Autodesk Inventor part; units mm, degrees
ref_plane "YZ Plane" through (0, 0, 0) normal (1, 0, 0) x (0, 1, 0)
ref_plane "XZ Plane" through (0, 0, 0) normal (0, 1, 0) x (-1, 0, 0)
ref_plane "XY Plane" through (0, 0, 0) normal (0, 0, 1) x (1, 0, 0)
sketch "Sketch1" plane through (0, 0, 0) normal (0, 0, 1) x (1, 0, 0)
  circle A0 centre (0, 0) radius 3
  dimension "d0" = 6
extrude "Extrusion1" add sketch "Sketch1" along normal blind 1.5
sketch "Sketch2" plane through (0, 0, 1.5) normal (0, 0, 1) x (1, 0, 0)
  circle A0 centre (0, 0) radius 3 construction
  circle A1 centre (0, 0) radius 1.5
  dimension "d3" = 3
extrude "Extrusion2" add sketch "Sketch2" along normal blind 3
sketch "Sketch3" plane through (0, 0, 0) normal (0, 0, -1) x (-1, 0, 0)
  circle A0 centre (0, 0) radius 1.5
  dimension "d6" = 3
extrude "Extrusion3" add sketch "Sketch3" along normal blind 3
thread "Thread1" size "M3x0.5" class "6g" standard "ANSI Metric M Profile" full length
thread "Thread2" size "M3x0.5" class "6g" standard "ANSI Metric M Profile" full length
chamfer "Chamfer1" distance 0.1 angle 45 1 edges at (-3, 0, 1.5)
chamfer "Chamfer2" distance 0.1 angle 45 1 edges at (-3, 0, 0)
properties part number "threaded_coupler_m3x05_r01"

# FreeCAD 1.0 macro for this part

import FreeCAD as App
import Part
import Sketcher

V = App.Vector
Q = App.Units.Quantity


def edges_at(feature, points):
    """Names of the edges that pass closest to the given points."""
    edges = feature.Shape.Edges
    near = lambda p: min(range(len(edges)), key=lambda i: edges[i].distToShape(Part.Vertex(*p))[0])
    return sorted({f"Edge{near(p) + 1}" for p in points})

doc = App.newDocument("Part")
body = doc.addObject("PartDesign::Body", "Body")

sketch1 = doc.addObject("Sketcher::SketchObject", "Sketch")
body.addObject(sketch1)
sketch1.AttachmentSupport = (doc.XY_Plane, [""])
sketch1.MapMode = "FlatFace"
sketch1.addGeometry(Part.Circle(V(0, 0, 0), V(0, 0, 1), 3), False)
sketch1.addConstraint([
    Sketcher.Constraint("Coincident", 0, 3, -1, 1),
    Sketcher.Constraint("Diameter", 0, Q("6 mm")),
])
pad1 = doc.addObject("PartDesign::Pad", "Pad")
body.addObject(pad1)
pad1.Profile = sketch1
pad1.Length = 1.5

sketch2 = doc.addObject("Sketcher::SketchObject", "Sketch001")
body.addObject(sketch2)
sketch2.AttachmentSupport = (doc.XY_Plane, [""])
sketch2.MapMode = "FlatFace"
sketch2.AttachmentOffset = App.Placement(V(0, 0, 1.5), App.Rotation())
sketch2.addGeometry(Part.Circle(V(0, 0, 0), V(0, 0, 1), 1.5), False)
sketch2.addConstraint([
    Sketcher.Constraint("Coincident", 0, 3, -1, 1),
    Sketcher.Constraint("Diameter", 0, Q("3 mm")),
])
pad2 = doc.addObject("PartDesign::Pad", "Pad001")
body.addObject(pad2)
pad2.Profile = sketch2
pad2.Length = 3

sketch3 = doc.addObject("Sketcher::SketchObject", "Sketch002")
body.addObject(sketch3)
sketch3.AttachmentSupport = (doc.XY_Plane, [""])
sketch3.MapMode = "FlatFace"
sketch3.addGeometry(Part.Circle(V(0, 0, 0), V(0, 0, 1), 1.5), False)
sketch3.addConstraint([
    Sketcher.Constraint("Coincident", 0, 3, -1, 1),
    Sketcher.Constraint("Diameter", 0, Q("3 mm")),
])
pad3 = doc.addObject("PartDesign::Pad", "Pad002")
body.addObject(pad3)
pad3.Profile = sketch3
pad3.Length = 3
pad3.Reversed = True
doc.recompute()

chamfer = doc.addObject("PartDesign::Chamfer", "Chamfer")
body.addObject(chamfer)
chamfer.Base = (pad3, edges_at(pad3, [(-3, 0, 1.5)]))
chamfer.Size = 0.1
doc.recompute()

chamfer2 = doc.addObject("PartDesign::Chamfer", "Chamfer001")
body.addObject(chamfer2)
chamfer2.Base = (chamfer, edges_at(chamfer, [(-3, 0, 0)]))
chamfer2.Size = 0.1

doc.recompute()
